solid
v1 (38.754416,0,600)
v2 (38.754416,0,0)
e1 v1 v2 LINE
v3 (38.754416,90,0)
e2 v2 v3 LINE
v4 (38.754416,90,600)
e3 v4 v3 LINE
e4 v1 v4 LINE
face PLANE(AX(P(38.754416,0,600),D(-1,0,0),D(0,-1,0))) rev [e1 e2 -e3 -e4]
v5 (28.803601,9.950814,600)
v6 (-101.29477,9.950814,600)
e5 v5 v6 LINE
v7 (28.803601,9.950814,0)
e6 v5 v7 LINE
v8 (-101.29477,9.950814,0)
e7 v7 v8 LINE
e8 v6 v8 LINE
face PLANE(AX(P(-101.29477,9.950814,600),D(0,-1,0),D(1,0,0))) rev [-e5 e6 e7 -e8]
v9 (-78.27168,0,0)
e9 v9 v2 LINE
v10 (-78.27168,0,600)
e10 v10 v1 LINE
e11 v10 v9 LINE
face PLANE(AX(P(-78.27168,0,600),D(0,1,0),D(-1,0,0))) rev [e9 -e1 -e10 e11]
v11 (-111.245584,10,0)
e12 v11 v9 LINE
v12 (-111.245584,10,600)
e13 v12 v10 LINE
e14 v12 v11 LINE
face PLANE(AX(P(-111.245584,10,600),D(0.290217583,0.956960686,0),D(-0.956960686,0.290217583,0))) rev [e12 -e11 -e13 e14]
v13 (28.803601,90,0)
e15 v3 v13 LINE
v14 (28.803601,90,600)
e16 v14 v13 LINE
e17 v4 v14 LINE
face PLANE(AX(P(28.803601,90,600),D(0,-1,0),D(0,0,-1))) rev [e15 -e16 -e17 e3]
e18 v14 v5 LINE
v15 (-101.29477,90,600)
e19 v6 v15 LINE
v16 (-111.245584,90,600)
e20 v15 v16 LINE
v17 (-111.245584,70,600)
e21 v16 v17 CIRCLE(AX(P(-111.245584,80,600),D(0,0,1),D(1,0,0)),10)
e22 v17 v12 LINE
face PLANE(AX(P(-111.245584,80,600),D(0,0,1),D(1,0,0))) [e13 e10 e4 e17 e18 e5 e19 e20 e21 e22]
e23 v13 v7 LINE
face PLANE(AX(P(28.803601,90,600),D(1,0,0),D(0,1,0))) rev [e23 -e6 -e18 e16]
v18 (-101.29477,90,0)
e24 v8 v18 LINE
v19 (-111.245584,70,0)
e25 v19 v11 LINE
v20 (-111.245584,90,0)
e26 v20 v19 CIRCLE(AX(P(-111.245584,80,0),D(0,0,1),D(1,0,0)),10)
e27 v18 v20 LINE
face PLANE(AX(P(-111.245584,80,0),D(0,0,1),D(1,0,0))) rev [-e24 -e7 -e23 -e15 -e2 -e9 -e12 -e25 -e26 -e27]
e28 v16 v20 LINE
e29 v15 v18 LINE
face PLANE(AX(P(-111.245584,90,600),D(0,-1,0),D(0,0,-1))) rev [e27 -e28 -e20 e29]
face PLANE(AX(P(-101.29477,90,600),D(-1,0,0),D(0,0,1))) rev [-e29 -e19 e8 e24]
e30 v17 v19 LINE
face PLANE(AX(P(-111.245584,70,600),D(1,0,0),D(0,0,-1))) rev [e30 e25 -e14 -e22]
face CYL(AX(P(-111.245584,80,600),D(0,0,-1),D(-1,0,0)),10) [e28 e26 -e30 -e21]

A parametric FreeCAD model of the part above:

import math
import FreeCAD as App
import Part
import Sketcher
Q = App.Units.Quantity

doc = App.newDocument("Part")
body = doc.addObject("PartDesign::Body", "Body")

# Sketch on XY plane
sketch1 = doc.addObject("Sketcher::SketchObject", "Sketch")
body.addObject(sketch1)
sketch1.AttachmentSupport = (doc.XY_Plane, [""])
sketch1.MapMode = "FlatFace"
sketch1.addGeometry(Part.LineSegment(App.Vector(-111, 70, 0), App.Vector(-111, 10, 0)), False)
sketch1.addGeometry(Part.LineSegment(App.Vector(-111, 10, 0), App.Vector(-78, 0, 0)), False)
sketch1.addGeometry(Part.LineSegment(App.Vector(-78, 0, 0), App.Vector(39, 0, 0)), False)
sketch1.addGeometry(Part.LineSegment(App.Vector(39, 0, 0), App.Vector(39, 90, 0)), False)
sketch1.addGeometry(Part.LineSegment(App.Vector(39, 90, 0), App.Vector(29, 90, 0)), False)
sketch1.addGeometry(Part.LineSegment(App.Vector(29, 90, 0), App.Vector(29, 10, 0)), False)
sketch1.addGeometry(Part.LineSegment(App.Vector(29, 10, 0), App.Vector(-101, 10, 0)), False)
sketch1.addGeometry(Part.LineSegment(App.Vector(-101, 10, 0), App.Vector(-101, 90, 0)), False)
sketch1.addGeometry(Part.LineSegment(App.Vector(-101, 90, 0), App.Vector(-111, 90, 0)), False)
sketch1.addGeometry(Part.ArcOfCircle(Part.Circle(App.Vector(-111, 80, 0), App.Vector(0, 0, 1), 10), math.radians(90), math.radians(270)), False)
sketch1.addConstraint(Sketcher.Constraint("Coincident", 0, 2, 1, 1))
sketch1.addConstraint(Sketcher.Constraint("Coincident", 1, 2, 2, 1))
sketch1.addConstraint(Sketcher.Constraint("Coincident", 2, 2, 3, 1))
sketch1.addConstraint(Sketcher.Constraint("Coincident", 3, 2, 4, 1))
sketch1.addConstraint(Sketcher.Constraint("Coincident", 4, 2, 5, 1))
sketch1.addConstraint(Sketcher.Constraint("Coincident", 5, 2, 6, 1))
sketch1.addConstraint(Sketcher.Constraint("Coincident", 6, 2, 7, 1))
sketch1.addConstraint(Sketcher.Constraint("Coincident", 7, 2, 8, 1))
sketch1.addConstraint(Sketcher.Constraint("Tangent", 8, 2, 9, 1))
sketch1.addConstraint(Sketcher.Constraint("Coincident", 9, 2, 0, 1))
sketch1.addConstraint(Sketcher.Constraint("Vertical", 0))
sketch1.addConstraint(Sketcher.Constraint("Horizontal", 2))
sketch1.addConstraint(Sketcher.Constraint("Vertical", 3))
sketch1.addConstraint(Sketcher.Constraint("Horizontal", 4))
sketch1.addConstraint(Sketcher.Constraint("Vertical", 5))
sketch1.addConstraint(Sketcher.Constraint("Horizontal", 6))
sketch1.addConstraint(Sketcher.Constraint("Vertical", 7))
sketch1.addConstraint(Sketcher.Constraint("Horizontal", 8))
sketch1.addConstraint(Sketcher.Constraint("PointOnObject", 1, 2, -1))
sketch1.addConstraint(Sketcher.Constraint("Horizontal", 4, 2, 7, 2))
sketch1.addConstraint(Sketcher.Constraint("Vertical", 9, 3, 0, 2))
sketch1.addConstraint(Sketcher.Constraint("Equal", 4, 8))
sketch1.addConstraint(Sketcher.Constraint("Radius", 9, Q("10 mm")))
sketch1.addConstraint(Sketcher.Constraint("DistanceY", 0, 2, 0, 1, Q("60 mm")))
sketch1.addConstraint(Sketcher.Constraint("DistanceY", 3, 1, 3, 2, Q("90 mm")))
sketch1.addConstraint(Sketcher.Constraint("DistanceX", 0, 2, 2, 2, Q("150 mm")))
sketch1.addConstraint(Sketcher.Constraint("DistanceX", 6, 2, 6, 1, Q("130.098372 mm")))
sketch1.addConstraint(Sketcher.Constraint("DistanceX", -1, 1, 4, 2, Q("28.803601 mm")))
sketch1.addConstraint(Sketcher.Constraint("DistanceX", 2, 1, 2, 2, Q("117.026096 mm")))
sketch1.addConstraint(Sketcher.Constraint("DistanceY", 5, 2, 5, 1, Q("80.049186 mm")))
pad1 = doc.addObject("PartDesign::Pad", "Pad")
body.addObject(pad1)
pad1.Profile = sketch1
pad1.Length = 600

doc.recompute()
